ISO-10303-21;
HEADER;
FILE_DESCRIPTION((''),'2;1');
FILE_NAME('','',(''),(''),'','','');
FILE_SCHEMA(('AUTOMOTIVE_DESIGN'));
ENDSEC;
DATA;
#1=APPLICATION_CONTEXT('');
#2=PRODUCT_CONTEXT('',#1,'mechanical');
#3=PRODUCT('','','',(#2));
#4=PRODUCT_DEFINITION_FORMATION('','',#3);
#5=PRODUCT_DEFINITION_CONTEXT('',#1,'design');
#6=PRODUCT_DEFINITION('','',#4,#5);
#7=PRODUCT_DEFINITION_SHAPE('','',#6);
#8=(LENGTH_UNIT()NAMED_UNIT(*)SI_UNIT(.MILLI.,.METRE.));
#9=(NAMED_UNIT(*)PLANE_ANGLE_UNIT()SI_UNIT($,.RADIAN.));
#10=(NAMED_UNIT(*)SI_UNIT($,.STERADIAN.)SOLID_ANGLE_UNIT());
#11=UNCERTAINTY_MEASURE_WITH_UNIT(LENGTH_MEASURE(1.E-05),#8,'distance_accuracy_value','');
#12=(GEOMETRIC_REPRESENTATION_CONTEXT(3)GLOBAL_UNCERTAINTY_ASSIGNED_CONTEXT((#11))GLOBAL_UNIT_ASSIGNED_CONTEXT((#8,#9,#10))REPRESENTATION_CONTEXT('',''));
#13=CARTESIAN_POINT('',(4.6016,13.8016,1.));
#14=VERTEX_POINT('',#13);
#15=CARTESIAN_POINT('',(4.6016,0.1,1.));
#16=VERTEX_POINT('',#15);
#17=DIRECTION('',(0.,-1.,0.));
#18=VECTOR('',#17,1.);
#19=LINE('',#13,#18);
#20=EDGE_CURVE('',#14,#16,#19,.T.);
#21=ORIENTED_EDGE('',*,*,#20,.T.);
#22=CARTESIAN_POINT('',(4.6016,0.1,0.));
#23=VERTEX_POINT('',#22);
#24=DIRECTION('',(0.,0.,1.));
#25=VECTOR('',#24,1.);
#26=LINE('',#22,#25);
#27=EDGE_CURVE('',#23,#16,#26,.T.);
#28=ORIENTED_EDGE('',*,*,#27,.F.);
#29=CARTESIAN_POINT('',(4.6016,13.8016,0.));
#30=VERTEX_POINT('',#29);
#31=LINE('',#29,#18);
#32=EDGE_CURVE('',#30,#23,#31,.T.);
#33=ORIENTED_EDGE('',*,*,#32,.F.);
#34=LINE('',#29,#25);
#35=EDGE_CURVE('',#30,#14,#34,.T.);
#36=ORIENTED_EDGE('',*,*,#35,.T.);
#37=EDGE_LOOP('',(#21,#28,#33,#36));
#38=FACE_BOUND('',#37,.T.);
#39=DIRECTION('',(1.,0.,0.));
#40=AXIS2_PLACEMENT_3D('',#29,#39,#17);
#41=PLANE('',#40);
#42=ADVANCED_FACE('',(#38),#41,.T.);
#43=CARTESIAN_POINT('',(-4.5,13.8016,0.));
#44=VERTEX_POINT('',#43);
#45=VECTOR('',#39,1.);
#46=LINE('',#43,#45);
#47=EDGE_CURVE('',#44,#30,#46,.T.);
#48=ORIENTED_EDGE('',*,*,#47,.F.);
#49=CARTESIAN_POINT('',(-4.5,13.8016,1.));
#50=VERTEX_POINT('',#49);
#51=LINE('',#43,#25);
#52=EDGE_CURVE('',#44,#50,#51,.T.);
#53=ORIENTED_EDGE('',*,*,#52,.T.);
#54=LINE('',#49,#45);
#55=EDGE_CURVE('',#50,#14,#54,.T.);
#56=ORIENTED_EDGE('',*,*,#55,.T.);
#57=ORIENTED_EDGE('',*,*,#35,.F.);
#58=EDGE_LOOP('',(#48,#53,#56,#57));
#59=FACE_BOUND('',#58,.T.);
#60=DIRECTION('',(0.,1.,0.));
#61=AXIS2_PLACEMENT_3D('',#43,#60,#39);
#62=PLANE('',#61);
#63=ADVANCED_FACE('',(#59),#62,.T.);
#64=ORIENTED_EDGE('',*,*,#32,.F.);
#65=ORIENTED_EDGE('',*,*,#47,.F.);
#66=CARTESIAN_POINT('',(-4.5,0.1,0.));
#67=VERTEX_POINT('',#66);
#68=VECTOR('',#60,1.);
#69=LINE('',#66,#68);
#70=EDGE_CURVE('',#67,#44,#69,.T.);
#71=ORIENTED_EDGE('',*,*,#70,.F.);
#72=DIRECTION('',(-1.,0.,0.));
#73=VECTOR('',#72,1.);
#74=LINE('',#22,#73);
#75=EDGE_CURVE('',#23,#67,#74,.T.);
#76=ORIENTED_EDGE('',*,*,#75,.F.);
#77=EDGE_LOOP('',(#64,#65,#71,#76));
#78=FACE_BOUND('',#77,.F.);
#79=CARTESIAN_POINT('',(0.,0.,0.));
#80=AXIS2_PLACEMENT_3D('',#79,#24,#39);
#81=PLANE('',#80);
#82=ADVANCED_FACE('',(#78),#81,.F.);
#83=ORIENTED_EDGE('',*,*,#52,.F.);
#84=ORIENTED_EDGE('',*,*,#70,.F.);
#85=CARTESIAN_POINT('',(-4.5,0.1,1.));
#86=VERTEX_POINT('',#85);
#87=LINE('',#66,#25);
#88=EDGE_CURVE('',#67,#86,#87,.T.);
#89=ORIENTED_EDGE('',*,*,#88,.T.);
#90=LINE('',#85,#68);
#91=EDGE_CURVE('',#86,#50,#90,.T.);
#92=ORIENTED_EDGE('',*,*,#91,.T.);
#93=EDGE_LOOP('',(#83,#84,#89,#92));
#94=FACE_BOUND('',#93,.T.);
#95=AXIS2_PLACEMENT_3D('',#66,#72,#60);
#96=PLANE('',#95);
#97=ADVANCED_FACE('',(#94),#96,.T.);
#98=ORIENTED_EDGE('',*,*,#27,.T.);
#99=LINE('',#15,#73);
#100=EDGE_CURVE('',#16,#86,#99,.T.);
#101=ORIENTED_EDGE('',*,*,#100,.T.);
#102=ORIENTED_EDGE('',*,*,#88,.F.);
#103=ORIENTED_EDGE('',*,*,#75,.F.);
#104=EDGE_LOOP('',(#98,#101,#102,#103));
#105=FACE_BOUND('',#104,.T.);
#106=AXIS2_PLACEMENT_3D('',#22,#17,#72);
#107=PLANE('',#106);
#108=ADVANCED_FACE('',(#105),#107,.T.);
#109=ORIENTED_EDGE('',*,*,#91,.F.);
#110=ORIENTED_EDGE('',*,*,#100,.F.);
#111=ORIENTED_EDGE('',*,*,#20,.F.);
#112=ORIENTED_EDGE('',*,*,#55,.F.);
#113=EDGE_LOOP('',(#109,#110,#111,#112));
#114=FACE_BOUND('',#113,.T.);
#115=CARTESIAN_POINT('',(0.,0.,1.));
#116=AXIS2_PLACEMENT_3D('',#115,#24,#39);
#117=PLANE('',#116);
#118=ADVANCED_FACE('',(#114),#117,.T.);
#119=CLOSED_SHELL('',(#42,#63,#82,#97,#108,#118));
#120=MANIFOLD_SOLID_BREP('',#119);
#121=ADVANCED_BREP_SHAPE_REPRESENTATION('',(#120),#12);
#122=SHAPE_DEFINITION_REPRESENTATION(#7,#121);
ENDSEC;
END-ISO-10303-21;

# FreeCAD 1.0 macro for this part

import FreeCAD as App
import Part
import Sketcher
Q = App.Units.Quantity

doc = App.newDocument("Part")
body = doc.addObject("PartDesign::Body", "Body")

# Sketch on XY plane
sketch1 = body.newObject("Sketcher::SketchObject", "Sketch")
sketch1.AttachmentSupport = (doc.getObject("XY_Plane"), [""])
sketch1.MapMode = "FlatFace"
sketch1.addGeometry(Part.LineSegment(App.Vector(5, 14, 0), App.Vector(-4, 14, 0)), False)
sketch1.addGeometry(Part.LineSegment(App.Vector(-4, 14, 0), App.Vector(-4, 0, 0)), False)
sketch1.addGeometry(Part.LineSegment(App.Vector(-4, 0, 0), App.Vector(5, 0, 0)), False)
sketch1.addGeometry(Part.LineSegment(App.Vector(5, 0, 0), App.Vector(5, 14, 0)), False)
sketch1.addConstraint(Sketcher.Constraint("Coincident", 0, 2, 1, 1))
sketch1.addConstraint(Sketcher.Constraint("Coincident", 1, 2, 2, 1))
sketch1.addConstraint(Sketcher.Constraint("Coincident", 2, 2, 3, 1))
sketch1.addConstraint(Sketcher.Constraint("Coincident", 3, 2, 0, 1))
sketch1.addConstraint(Sketcher.Constraint("Horizontal", 0))
sketch1.addConstraint(Sketcher.Constraint("Vertical", 1))
sketch1.addConstraint(Sketcher.Constraint("Horizontal", 2))
sketch1.addConstraint(Sketcher.Constraint("Vertical", 3))
sketch1.addConstraint(Sketcher.Constraint("DistanceX", 0, 2, -1, 1, Q("4.5 mm")))
sketch1.addConstraint(Sketcher.Constraint("DistanceY", -1, 1, 1, 2, Q("0.1 mm")))
sketch1.addConstraint(Sketcher.Constraint("DistanceX", 0, 2, 0, 1, Q("9.1016 mm")))
sketch1.addConstraint(Sketcher.Constraint("DistanceY", 1, 2, 1, 1, Q("13.7016 mm")))
pad1 = body.newObject("PartDesign::Pad", "Pad")
pad1.Profile = sketch1
pad1.Length = 1

doc.recompute()
